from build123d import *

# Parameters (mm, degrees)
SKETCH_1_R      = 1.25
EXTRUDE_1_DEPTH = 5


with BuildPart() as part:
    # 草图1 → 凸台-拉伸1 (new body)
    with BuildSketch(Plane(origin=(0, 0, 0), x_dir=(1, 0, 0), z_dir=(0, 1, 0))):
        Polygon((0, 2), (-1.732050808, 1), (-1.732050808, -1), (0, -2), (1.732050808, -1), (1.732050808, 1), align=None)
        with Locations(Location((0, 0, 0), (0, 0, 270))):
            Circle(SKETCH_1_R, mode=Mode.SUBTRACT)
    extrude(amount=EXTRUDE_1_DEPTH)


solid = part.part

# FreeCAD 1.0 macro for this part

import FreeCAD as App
import Part
import Sketcher

V = App.Vector
Q = App.Units.Quantity

doc = App.newDocument("Part")
body = doc.addObject("PartDesign::Body", "Body")

sketch1 = doc.addObject("Sketcher::SketchObject", "Sketch")
body.addObject(sketch1)
sketch1.AttachmentSupport = (doc.XZ_Plane, [""])
sketch1.MapMode = "FlatFace"
sketch1.addGeometry([
    Part.LineSegment(V(0, -2, 0), V(-1.7, -1, 0)),
    Part.LineSegment(V(-1.7, -1, 0), V(-1.7, 1, 0)),
    Part.LineSegment(V(-1.7, 1, 0), V(0, 2, 0)),
    Part.LineSegment(V(0, 2, 0), V(1.7, 1, 0)),
    Part.LineSegment(V(1.7, 1, 0), V(1.7, -1, 0)),
    Part.LineSegment(V(1.7, -1, 0), V(0, -2, 0)),
    Part.Circle(V(0, 0, 0), V(0, 0, 1), 1.2),
], False)
sketch1.addConstraint([
    Sketcher.Constraint("Coincident", 0, 2, 1, 1),
    Sketcher.Constraint("Coincident", 1, 2, 2, 1),
    Sketcher.Constraint("Coincident", 2, 2, 3, 1),
    Sketcher.Constraint("Coincident", 3, 2, 4, 1),
    Sketcher.Constraint("Coincident", 4, 2, 5, 1),
    Sketcher.Constraint("Coincident", 5, 2, 0, 1),
    Sketcher.Constraint("Vertical", 1),
    Sketcher.Constraint("Vertical", 4),
    Sketcher.Constraint("Coincident", 6, 3, -1, 1),
    Sketcher.Constraint("Symmetric", 0, 2, 3, 2, -1, 1),
    Sketcher.Constraint("Symmetric", 2, 2, 5, 2, -1, 1),
    Sketcher.Constraint("PointOnObject", 2, 2, -2),
    Sketcher.Constraint("Parallel", 2, 5),
    Sketcher.Constraint("Horizontal", 1, 2, 3, 2),
    Sketcher.Constraint("Diameter", 6, 2.5),
    Sketcher.Constraint("DistanceY", 1, 1, 1, 2, 2.0),
    Sketcher.Constraint("Angle", 0, Q("150 deg")),
    Sketcher.Constraint("Distance", 0, 2.0),
])
pad1 = doc.addObject("PartDesign::Pad", "Pad")
body.addObject(pad1)
pad1.Profile = sketch1
pad1.Length = 5
pad1.Reversed = True

doc.recompute()
